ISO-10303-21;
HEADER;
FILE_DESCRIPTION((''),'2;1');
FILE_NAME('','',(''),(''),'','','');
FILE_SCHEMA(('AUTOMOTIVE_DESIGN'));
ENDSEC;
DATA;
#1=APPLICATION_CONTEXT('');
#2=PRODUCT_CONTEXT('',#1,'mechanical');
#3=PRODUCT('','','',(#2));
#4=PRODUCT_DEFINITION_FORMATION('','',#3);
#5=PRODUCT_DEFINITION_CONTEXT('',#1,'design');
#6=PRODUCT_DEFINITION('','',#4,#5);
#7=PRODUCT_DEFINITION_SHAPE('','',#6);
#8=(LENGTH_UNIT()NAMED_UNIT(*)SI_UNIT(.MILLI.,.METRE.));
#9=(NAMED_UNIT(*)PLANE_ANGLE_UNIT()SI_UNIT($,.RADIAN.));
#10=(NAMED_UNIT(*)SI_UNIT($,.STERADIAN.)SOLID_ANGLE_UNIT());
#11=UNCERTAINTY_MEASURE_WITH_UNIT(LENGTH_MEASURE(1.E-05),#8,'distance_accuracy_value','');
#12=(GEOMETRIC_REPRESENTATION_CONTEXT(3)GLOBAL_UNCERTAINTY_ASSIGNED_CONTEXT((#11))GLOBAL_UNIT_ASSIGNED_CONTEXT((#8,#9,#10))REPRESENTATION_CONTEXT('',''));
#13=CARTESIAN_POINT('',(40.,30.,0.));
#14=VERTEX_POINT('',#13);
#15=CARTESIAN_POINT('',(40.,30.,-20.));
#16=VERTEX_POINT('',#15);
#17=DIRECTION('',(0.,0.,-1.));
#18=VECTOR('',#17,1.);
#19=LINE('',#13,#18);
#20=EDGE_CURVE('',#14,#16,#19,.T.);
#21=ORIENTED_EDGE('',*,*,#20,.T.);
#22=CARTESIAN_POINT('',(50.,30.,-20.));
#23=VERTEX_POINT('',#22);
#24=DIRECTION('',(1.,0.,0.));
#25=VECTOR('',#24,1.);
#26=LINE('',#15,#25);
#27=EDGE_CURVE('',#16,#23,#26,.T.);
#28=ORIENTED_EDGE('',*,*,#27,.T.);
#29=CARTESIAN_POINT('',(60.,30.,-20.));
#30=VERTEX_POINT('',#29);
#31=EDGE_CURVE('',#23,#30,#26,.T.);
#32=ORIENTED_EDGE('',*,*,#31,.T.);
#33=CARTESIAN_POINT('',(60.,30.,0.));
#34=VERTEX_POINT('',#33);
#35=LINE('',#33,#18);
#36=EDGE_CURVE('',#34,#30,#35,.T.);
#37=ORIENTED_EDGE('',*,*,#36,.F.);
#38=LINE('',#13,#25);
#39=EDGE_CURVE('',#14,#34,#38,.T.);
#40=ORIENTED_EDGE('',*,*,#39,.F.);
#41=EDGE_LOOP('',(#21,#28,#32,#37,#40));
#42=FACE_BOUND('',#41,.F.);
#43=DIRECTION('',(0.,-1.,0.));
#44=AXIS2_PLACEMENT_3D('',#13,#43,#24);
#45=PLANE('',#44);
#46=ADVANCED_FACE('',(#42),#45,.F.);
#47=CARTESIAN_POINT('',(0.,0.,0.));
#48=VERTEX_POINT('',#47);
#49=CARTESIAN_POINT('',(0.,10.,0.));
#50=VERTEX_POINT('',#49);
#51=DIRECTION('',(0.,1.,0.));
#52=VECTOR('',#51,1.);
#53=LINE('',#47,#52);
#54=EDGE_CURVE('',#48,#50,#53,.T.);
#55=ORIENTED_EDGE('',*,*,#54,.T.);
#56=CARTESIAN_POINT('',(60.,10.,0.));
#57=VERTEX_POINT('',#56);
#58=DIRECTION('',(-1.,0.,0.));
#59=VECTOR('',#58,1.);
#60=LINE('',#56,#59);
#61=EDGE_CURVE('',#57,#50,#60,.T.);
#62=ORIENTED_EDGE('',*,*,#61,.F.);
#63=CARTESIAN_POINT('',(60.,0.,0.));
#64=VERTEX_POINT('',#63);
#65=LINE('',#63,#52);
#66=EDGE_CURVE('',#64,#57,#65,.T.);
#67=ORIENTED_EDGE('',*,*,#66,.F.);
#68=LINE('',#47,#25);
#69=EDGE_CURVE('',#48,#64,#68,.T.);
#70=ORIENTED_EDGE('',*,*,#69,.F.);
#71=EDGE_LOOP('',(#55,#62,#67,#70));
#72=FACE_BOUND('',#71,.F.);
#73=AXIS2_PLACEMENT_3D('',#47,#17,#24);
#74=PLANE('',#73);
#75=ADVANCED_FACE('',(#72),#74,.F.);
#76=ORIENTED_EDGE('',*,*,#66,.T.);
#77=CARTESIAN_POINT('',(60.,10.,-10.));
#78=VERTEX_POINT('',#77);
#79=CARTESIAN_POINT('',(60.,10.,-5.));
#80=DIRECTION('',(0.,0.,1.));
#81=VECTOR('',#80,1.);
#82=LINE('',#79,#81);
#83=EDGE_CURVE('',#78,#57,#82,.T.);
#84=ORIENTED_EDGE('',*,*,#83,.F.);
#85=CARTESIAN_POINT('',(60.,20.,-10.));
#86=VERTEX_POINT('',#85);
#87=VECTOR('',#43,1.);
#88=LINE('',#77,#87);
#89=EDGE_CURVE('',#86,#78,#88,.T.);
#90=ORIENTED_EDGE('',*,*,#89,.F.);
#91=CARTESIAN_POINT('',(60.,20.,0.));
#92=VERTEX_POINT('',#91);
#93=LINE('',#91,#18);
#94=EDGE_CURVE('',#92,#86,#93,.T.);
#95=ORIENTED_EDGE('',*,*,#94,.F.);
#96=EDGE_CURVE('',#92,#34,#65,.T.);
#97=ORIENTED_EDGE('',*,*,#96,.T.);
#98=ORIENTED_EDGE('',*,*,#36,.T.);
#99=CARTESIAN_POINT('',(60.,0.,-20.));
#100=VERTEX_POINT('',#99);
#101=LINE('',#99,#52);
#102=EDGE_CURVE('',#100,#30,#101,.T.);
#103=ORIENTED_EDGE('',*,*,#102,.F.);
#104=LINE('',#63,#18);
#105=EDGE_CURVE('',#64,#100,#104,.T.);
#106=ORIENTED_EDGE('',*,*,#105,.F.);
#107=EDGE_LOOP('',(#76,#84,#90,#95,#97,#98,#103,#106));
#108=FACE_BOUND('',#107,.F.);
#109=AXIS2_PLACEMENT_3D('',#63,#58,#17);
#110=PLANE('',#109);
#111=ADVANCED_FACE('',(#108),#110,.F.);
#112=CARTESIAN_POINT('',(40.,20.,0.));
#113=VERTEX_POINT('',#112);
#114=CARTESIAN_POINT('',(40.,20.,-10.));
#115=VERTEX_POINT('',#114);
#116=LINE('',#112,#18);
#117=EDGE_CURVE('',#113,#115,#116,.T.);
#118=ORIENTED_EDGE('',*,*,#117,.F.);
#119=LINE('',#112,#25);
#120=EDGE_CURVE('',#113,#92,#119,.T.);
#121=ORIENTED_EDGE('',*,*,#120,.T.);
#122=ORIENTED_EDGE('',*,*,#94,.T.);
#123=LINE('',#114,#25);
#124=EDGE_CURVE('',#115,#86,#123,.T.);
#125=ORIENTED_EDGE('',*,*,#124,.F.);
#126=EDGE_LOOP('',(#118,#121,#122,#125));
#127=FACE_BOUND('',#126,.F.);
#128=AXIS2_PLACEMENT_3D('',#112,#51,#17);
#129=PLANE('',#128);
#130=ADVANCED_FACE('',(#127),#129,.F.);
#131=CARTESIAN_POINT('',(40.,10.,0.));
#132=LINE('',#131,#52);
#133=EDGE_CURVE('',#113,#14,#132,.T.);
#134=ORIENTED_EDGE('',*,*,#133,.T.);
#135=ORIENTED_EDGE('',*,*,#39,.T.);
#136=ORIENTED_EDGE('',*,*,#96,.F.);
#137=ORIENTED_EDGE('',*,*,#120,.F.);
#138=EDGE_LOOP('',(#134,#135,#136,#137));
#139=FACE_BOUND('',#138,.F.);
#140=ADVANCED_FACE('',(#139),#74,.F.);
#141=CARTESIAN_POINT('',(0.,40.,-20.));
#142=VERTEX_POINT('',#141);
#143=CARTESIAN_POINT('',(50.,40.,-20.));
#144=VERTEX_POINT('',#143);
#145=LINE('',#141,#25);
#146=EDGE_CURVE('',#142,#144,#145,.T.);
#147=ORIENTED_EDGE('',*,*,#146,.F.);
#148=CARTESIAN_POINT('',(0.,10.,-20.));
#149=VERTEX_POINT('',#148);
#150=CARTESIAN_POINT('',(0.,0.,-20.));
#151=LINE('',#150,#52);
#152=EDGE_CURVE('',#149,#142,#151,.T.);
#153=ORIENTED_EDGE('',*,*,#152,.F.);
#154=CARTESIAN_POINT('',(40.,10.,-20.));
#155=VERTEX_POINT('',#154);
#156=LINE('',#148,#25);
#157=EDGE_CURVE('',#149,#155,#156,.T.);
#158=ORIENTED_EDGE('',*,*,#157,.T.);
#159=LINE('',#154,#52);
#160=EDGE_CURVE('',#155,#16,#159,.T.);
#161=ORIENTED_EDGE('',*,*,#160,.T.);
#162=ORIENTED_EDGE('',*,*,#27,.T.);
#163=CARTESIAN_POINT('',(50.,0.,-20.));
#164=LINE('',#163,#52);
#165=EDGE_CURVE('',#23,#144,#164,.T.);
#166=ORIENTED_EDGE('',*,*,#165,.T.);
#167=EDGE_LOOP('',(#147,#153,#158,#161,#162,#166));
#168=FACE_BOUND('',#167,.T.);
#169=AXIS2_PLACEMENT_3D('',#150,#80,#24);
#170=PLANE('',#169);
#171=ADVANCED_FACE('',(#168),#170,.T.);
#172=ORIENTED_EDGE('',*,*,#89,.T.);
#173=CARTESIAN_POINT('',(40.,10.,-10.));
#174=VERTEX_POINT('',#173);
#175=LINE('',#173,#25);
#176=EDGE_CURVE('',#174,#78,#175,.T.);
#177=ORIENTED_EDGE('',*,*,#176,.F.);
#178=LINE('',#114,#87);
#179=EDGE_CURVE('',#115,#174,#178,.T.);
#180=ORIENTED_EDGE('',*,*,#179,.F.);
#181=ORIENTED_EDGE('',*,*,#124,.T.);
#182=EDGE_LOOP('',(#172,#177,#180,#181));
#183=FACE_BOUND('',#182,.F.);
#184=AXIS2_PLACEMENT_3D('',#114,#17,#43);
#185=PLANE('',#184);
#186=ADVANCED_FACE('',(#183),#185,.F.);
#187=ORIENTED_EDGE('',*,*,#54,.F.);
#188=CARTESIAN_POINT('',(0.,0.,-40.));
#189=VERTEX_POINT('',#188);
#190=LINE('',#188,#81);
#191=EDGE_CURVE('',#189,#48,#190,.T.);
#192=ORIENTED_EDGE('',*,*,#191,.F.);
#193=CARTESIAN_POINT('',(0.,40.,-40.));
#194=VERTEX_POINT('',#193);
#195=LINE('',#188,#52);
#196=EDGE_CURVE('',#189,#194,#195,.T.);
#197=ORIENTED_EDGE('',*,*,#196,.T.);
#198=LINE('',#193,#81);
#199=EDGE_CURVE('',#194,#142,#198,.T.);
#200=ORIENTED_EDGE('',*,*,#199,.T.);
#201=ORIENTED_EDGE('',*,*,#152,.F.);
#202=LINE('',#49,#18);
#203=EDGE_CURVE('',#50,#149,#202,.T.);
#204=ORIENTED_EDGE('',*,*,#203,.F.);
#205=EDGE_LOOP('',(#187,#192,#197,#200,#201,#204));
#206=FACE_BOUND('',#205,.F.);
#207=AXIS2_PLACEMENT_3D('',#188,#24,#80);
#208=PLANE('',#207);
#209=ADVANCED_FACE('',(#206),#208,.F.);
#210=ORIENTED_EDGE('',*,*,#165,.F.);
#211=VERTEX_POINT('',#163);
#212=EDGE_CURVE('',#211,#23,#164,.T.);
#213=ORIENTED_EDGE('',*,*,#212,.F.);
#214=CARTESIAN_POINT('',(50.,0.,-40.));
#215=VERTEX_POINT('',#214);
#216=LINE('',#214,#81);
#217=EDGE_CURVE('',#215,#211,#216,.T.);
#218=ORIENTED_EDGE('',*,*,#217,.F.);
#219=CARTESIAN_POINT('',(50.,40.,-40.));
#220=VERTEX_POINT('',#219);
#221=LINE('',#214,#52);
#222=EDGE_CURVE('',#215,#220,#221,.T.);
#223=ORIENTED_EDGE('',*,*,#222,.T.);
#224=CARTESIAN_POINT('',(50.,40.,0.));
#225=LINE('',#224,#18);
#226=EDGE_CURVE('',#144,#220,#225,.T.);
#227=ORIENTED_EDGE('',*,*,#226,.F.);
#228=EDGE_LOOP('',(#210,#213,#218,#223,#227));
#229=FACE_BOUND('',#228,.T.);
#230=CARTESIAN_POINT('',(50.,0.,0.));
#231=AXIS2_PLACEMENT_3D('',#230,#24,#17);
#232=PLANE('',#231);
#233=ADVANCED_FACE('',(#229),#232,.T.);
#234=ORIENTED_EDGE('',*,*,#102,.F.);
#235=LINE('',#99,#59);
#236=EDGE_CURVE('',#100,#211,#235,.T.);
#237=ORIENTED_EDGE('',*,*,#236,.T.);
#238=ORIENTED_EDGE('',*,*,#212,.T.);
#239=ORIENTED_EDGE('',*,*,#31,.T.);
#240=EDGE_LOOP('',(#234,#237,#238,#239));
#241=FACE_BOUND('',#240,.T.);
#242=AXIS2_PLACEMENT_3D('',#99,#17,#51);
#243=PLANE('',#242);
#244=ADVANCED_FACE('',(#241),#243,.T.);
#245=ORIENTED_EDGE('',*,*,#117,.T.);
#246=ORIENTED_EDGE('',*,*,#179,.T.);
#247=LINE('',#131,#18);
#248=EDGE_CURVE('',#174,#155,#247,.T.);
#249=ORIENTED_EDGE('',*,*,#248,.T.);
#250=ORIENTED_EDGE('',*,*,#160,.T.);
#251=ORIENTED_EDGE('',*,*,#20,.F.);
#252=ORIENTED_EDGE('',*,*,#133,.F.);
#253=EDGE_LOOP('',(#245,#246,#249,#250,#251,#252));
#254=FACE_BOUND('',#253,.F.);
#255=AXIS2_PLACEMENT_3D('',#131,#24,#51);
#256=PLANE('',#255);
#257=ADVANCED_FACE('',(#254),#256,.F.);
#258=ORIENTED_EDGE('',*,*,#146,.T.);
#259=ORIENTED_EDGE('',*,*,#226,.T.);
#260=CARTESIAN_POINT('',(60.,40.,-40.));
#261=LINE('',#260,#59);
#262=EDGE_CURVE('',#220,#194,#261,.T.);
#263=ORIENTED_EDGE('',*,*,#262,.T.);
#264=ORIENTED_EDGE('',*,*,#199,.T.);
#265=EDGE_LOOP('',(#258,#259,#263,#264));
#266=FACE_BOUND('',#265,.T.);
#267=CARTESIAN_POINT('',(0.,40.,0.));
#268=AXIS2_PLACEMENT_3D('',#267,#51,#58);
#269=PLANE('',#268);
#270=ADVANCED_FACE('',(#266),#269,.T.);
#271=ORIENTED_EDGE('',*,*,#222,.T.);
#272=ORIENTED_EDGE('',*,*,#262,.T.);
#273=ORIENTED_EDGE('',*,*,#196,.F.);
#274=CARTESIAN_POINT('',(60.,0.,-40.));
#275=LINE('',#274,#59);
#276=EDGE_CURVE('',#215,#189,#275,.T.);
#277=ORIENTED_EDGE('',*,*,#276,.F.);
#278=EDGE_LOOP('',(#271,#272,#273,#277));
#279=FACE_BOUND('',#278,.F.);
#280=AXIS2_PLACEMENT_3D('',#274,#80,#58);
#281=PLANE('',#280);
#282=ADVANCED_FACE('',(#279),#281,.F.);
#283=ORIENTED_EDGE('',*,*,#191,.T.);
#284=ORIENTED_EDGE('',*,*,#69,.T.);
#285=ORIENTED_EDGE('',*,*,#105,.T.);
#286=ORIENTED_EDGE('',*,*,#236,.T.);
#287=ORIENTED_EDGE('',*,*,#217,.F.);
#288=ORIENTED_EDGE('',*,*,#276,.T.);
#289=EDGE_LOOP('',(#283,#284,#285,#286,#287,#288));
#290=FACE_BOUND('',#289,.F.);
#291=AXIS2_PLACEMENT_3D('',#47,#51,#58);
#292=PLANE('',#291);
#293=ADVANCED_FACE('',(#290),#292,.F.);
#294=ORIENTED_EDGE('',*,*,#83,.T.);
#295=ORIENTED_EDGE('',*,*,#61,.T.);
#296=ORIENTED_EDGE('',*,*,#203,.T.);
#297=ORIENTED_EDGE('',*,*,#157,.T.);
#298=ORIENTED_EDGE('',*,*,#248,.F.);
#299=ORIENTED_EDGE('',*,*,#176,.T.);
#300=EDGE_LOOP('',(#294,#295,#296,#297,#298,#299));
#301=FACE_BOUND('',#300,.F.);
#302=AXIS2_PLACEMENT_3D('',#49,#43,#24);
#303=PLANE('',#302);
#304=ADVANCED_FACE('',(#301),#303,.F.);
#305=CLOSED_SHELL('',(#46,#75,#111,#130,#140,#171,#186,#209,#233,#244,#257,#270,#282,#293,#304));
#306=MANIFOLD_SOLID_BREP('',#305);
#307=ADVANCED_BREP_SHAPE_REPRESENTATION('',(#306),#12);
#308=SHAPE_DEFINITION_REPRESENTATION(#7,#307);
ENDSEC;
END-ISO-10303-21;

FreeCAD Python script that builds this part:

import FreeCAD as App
import Part
import Sketcher

V = App.Vector
Q = App.Units.Quantity


def add_polygon(sketch, points):
    """Adds a closed chain of lines whose ends are joined by coincident constraints."""
    first, n = sketch.GeometryCount, len(points)
    for a, b in zip(points, points[1:] + points[:1]):
        sketch.addGeometry(Part.LineSegment(App.Vector(*a, 0), App.Vector(*b, 0)), False)
    for i in range(n):
        sketch.addConstraint(Sketcher.Constraint("Coincident", first + i, 2, first + (i + 1) % n, 1))

doc = App.newDocument("Part")
body = doc.addObject("PartDesign::Body", "Body")

sketch1 = body.newObject("Sketcher::SketchObject", "Sketch")
sketch1.AttachmentSupport = (doc.getObject("XZ_Plane"), [""])
sketch1.MapMode = "FlatFace"
add_polygon(sketch1, [(0, -40), (0, 0), (60, 0), (60, -40)])
sketch1.addConstraint(Sketcher.Constraint("Vertical", 0))
sketch1.addConstraint(Sketcher.Constraint("Horizontal", 1))
sketch1.addConstraint(Sketcher.Constraint("Vertical", 2))
sketch1.addConstraint(Sketcher.Constraint("Horizontal", 3))
sketch1.addConstraint(Sketcher.Constraint("Coincident", 0, 2, -1, 1))
sketch1.addConstraint(Sketcher.Constraint("DistanceX", 1, 1, 1, 2, Q("60 mm")))
sketch1.addConstraint(Sketcher.Constraint("DistanceY", 0, 1, 0, 2, Q("40 mm")))
pad1 = body.newObject("PartDesign::Pad", "Pad")
pad1.Profile = sketch1
pad1.Length = 40
pad1.Reversed = True

sketch2 = body.newObject("Sketcher::SketchObject", "Sketch001")
sketch2.AttachmentSupport = (doc.getObject("YZ_Plane"), [""])
sketch2.MapMode = "FlatFace"
sketch2.AttachmentOffset = App.Placement(V(0, 0, 60), App.Rotation())
add_polygon(sketch2, [(0, -20), (0, -40), (55.5046, -40), (55.5046, -20)])
sketch2.addConstraint(Sketcher.Constraint("Vertical", 0))
sketch2.addConstraint(Sketcher.Constraint("Horizontal", 1))
sketch2.addConstraint(Sketcher.Constraint("Vertical", 2))
sketch2.addConstraint(Sketcher.Constraint("Horizontal", 3))
sketch2.addConstraint(Sketcher.Constraint("PointOnObject", 0, 2, -2))
sketch2.addConstraint(Sketcher.Constraint("DistanceY", 0, 2, 0, 1, Q("20 mm")))
sketch2.addConstraint(Sketcher.Constraint("DistanceY", 2, 2, -1, 1, Q("20 mm")))
sketch2.addConstraint(Sketcher.Constraint("DistanceX", 1, 1, 1, 2, Q("55.5046 mm")))
pocket1 = body.newObject("PartDesign::Pocket", "Pocket")
pocket1.Profile = sketch2
pocket1.Length = 10

sketch3 = body.newObject("Sketcher::SketchObject", "Sketch002")
sketch3.AttachmentSupport = (doc.getObject("XY_Plane"), [""])
sketch3.MapMode = "FlatFace"
add_polygon(sketch3, [(60, 40), (0, 40), (0, 10), (40, 10), (40, 30), (60, 30)])
sketch3.addConstraint(Sketcher.Constraint("Horizontal", 0))
sketch3.addConstraint(Sketcher.Constraint("Vertical", 1))
sketch3.addConstraint(Sketcher.Constraint("Horizontal", 2))
sketch3.addConstraint(Sketcher.Constraint("Vertical", 3))
sketch3.addConstraint(Sketcher.Constraint("Horizontal", 4))
sketch3.addConstraint(Sketcher.Constraint("Vertical", 5))
sketch3.addConstraint(Sketcher.Constraint("PointOnObject", 0, 2, -2))
sketch3.addConstraint(Sketcher.Constraint("Equal", 4, 3))
sketch3.addConstraint(Sketcher.Constraint("DistanceX", 4, 1, 4, 2, Q("20 mm")))
sketch3.addConstraint(Sketcher.Constraint("DistanceY", 5, 1, 5, 2, Q("10 mm")))
sketch3.addConstraint(Sketcher.Constraint("DistanceY", -1, 1, 1, 2, Q("10 mm")))
sketch3.addConstraint(Sketcher.Constraint("DistanceX", 0, 2, 0, 1, Q("60 mm")))
pocket2 = body.newObject("PartDesign::Pocket", "Pocket001")
pocket2.Profile = sketch3
pocket2.Length = 20

sketch4 = body.newObject("Sketcher::SketchObject", "Sketch003")
sketch4.AttachmentSupport = (doc.getObject("YZ_Plane"), [""])
sketch4.MapMode = "FlatFace"
sketch4.AttachmentOffset = App.Placement(V(0, 0, 40), App.Rotation())
add_polygon(sketch4, [(20, -10), (10, -10), (10, 0), (20, 0)])
sketch4.addConstraint(Sketcher.Constraint("Horizontal", 0))
sketch4.addConstraint(Sketcher.Constraint("Vertical", 1))
sketch4.addConstraint(Sketcher.Constraint("Horizontal", 2))
sketch4.addConstraint(Sketcher.Constraint("Vertical", 3))
sketch4.addConstraint(Sketcher.Constraint("PointOnObject", 1, 2, -1))
sketch4.addConstraint(Sketcher.Constraint("Equal", 2, 1))
sketch4.addConstraint(Sketcher.Constraint("DistanceX", 0, 2, 0, 1, Q("10 mm")))
sketch4.addConstraint(Sketcher.Constraint("DistanceX", -1, 1, 0, 2, Q("10 mm")))
pocket3 = body.newObject("PartDesign::Pocket", "Pocket002")
pocket3.Profile = sketch4
pocket3.Length = 28
pocket3.Reversed = True

doc.recompute()
